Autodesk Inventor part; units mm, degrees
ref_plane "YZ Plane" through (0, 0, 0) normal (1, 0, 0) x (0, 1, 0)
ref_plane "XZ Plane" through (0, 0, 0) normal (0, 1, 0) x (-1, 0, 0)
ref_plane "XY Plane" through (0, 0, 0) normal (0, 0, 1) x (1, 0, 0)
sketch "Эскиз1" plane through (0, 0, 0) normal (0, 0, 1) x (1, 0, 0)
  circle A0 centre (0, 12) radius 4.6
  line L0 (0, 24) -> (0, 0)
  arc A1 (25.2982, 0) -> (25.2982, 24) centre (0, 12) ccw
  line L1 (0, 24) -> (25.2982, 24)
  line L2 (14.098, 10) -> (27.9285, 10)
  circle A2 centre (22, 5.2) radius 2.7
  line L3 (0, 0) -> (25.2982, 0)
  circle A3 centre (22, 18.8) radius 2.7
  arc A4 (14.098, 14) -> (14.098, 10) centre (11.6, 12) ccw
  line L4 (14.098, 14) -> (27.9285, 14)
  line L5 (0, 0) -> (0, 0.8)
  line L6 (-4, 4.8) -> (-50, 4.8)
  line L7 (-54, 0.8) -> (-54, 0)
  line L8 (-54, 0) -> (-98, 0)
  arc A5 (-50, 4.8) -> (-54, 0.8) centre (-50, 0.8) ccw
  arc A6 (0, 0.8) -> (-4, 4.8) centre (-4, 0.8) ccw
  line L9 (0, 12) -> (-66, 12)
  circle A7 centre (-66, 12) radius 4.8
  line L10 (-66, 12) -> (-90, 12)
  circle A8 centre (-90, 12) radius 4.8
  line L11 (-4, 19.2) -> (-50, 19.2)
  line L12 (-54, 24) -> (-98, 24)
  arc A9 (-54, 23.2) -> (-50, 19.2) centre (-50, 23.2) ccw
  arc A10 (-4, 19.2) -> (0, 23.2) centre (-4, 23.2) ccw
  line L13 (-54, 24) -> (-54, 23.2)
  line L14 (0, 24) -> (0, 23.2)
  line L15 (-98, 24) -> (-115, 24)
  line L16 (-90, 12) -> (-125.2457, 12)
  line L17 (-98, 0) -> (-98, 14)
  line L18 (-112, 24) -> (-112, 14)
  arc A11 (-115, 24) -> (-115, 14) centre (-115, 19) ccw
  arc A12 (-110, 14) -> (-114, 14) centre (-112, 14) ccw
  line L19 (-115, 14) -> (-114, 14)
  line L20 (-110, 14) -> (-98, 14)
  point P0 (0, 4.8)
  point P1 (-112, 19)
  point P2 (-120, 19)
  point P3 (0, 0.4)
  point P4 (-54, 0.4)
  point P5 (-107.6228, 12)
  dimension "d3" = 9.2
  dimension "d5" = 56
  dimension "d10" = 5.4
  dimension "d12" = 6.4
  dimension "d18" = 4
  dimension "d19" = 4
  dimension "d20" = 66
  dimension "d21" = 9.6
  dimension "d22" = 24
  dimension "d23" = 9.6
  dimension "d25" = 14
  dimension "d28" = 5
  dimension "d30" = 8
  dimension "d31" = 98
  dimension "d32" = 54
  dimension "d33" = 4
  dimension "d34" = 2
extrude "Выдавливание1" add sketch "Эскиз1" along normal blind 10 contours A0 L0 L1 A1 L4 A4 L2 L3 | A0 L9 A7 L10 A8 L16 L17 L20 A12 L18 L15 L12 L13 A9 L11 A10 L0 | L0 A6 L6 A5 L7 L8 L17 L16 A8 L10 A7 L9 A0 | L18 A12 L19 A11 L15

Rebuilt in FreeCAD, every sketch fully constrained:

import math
import FreeCAD as App
import Part
import Sketcher

V = App.Vector

doc = App.newDocument("Part")
body = doc.addObject("PartDesign::Body", "Body")

# Sketch on XY plane
sketch1 = body.newObject("Sketcher::SketchObject", "Sketch")
sketch1.AttachmentSupport = (doc.getObject("XY_Plane"), [""])
sketch1.MapMode = "FlatFace"
sketch1.addGeometry([
    Part.LineSegment(V(0, 24, 0), V(0, 23.2, 0)),  # 0
    Part.ArcOfCircle(Part.Circle(V(-4, 23.2, 0), V(0, 0, 1), 4), math.radians(-90), math.radians(0)),  # 1
    Part.LineSegment(V(-4, 19.2, 0), V(-50, 19.2, 0)),  # 2
    Part.ArcOfCircle(Part.Circle(V(-50, 23.2, 0), V(0, 0, 1), 4), math.radians(180), math.radians(270)),  # 3
    Part.LineSegment(V(-54, 23.2, 0), V(-54, 24, 0)),  # 4
    Part.LineSegment(V(-54, 24, 0), V(-115, 24, 0)),  # 5
    Part.ArcOfCircle(Part.Circle(V(-115, 19, 0), V(0, 0, 1), 5), math.radians(90), math.radians(270)),  # 6
    Part.LineSegment(V(-115, 14, 0), V(-114, 14, 0)),  # 7
    Part.ArcOfCircle(Part.Circle(V(-112, 14, 0), V(0, 0, 1), 2), math.radians(0), math.radians(180)),  # 8
    Part.LineSegment(V(-110, 14, 0), V(-98, 14, 0)),  # 9
    Part.LineSegment(V(-98, 14, 0), V(-98, 0, 0)),  # 10
    Part.LineSegment(V(-98, 0, 0), V(-54, 0, 0)),  # 11
    Part.LineSegment(V(-54, 0, 0), V(-54, 0.8, 0)),  # 12
    Part.ArcOfCircle(Part.Circle(V(-50, 0.8, 0), V(0, 0, 1), 4), math.radians(90), math.radians(180)),  # 13
    Part.LineSegment(V(-50, 4.8, 0), V(-4, 4.8, 0)),  # 14
    Part.ArcOfCircle(Part.Circle(V(-4, 0.8, 0), V(0, 0, 1), 4), math.radians(0), math.radians(90)),  # 15
    Part.LineSegment(V(0, 0.8, 0), V(0, 0, 0)),  # 16
    Part.LineSegment(V(0, 0, 0), V(25.3, 0, 0)),  # 17
    Part.ArcOfCircle(Part.Circle(V(0, 12, 0), V(0, 0, 1), 28), math.radians(-25), math.radians(-4)),  # 18
    Part.LineSegment(V(27.9, 10, 0), V(14.1, 10, 0)),  # 19
    Part.ArcOfCircle(Part.Circle(V(11.6, 12, 0), V(0, 0, 1), 3.2), math.radians(39), math.radians(321)),  # 20
    Part.LineSegment(V(14.1, 14, 0), V(27.9, 14, 0)),  # 21
    Part.ArcOfCircle(Part.Circle(V(0, 12, 0), V(0, 0, 1), 28), math.radians(4), math.radians(25)),  # 22
    Part.LineSegment(V(25.3, 24, 0), V(0, 24, 0)),  # 23
    Part.Circle(V(0, 12, 0), V(0, 0, 1), 4.6),  # 24
    Part.Circle(V(22, 5.2, 0), V(0, 0, 1), 2.7),  # 25
    Part.Circle(V(22, 18.8, 0), V(0, 0, 1), 2.7),  # 26
    Part.Circle(V(-66, 12, 0), V(0, 0, 1), 4.8),  # 27
    Part.Circle(V(-90, 12, 0), V(0, 0, 1), 4.8),  # 28
], False)
sketch1.addConstraint([
    Sketcher.Constraint("Tangent", 0, 2, 1, 2),
    Sketcher.Constraint("Tangent", 1, 1, 2, 1),
    Sketcher.Constraint("Tangent", 2, 2, 3, 2),
    Sketcher.Constraint("Tangent", 3, 1, 4, 1),
    Sketcher.Constraint("Coincident", 4, 2, 5, 1),
    Sketcher.Constraint("Tangent", 5, 2, 6, 1),
    Sketcher.Constraint("Tangent", 6, 2, 7, 1),
    Sketcher.Constraint("Coincident", 7, 2, 8, 2),
    Sketcher.Constraint("Coincident", 8, 1, 9, 1),
    Sketcher.Constraint("Coincident", 9, 2, 10, 1),
    Sketcher.Constraint("Coincident", 10, 2, 11, 1),
    Sketcher.Constraint("Coincident", 11, 2, 12, 1),
    Sketcher.Constraint("Tangent", 12, 2, 13, 2),
    Sketcher.Constraint("Tangent", 13, 1, 14, 1),
    Sketcher.Constraint("Tangent", 14, 2, 15, 2),
    Sketcher.Constraint("Tangent", 15, 1, 16, 1),
    Sketcher.Constraint("Coincident", 16, 2, 17, 1),
    Sketcher.Constraint("Coincident", 17, 2, 18, 1),
    Sketcher.Constraint("Coincident", 18, 2, 19, 1),
    Sketcher.Constraint("Coincident", 19, 2, 20, 2),
    Sketcher.Constraint("Coincident", 20, 1, 21, 1),
    Sketcher.Constraint("Coincident", 21, 2, 22, 1),
    Sketcher.Constraint("Coincident", 22, 2, 23, 1),
    Sketcher.Constraint("Coincident", 23, 2, 0, 1),
    Sketcher.Constraint("Vertical", 0),
    Sketcher.Constraint("Horizontal", 2),
    Sketcher.Constraint("Vertical", 4),
    Sketcher.Constraint("Horizontal", 5),
    Sketcher.Constraint("Horizontal", 7),
    Sketcher.Constraint("Horizontal", 9),
    Sketcher.Constraint("Vertical", 10),
    Sketcher.Constraint("Horizontal", 11),
    Sketcher.Constraint("Vertical", 12),
    Sketcher.Constraint("Horizontal", 14),
    Sketcher.Constraint("Vertical", 16),
    Sketcher.Constraint("Horizontal", 17),
    Sketcher.Constraint("Horizontal", 19),
    Sketcher.Constraint("Horizontal", 21),
    Sketcher.Constraint("Horizontal", 23),
    Sketcher.Constraint("Coincident", 16, 2, -1, 1),
    Sketcher.Constraint("Coincident", 22, 3, 18, 3),
    Sketcher.Constraint("Coincident", 24, 3, 18, 3),
    Sketcher.Constraint("Equal", 1, 3),
    Sketcher.Constraint("Equal", 3, 13),
    Sketcher.Constraint("Equal", 13, 15),
    Sketcher.Constraint("Equal", 18, 22),
    Sketcher.Constraint("Equal", 25, 26),
    Sketcher.Constraint("Equal", 27, 28),
    Sketcher.Constraint("PointOnObject", 18, 3, -2),
    Sketcher.Constraint("PointOnObject", 0, 2, -2),
    Sketcher.Constraint("PointOnObject", 10, 2, -1),
    Sketcher.Constraint("Horizontal", 18, 3, 20, 3),
    Sketcher.Constraint("Horizontal", 24, 3, 27, 3),
    Sketcher.Constraint("Horizontal", 27, 3, 28, 3),
    Sketcher.Constraint("Horizontal", 8, 3, 6, 2),
    Sketcher.Constraint("Horizontal", 7, 2, 8, 1),
    Sketcher.Constraint("Horizontal", 9, 2, 20, 1),
    Sketcher.Constraint("Horizontal", 5, 2, 22, 2),
    Sketcher.Constraint("Vertical", 3, 3, 13, 3),
    Sketcher.Constraint("Vertical", 25, 3, 26, 3),
    Sketcher.Constraint("Vertical", 19, 2, 20, 1),
    Sketcher.Constraint("Vertical", 17, 2, 22, 2),
    Sketcher.Constraint("Equal", 4, 12),
    Sketcher.Constraint("Radius", 1, 4.0),
    Sketcher.Constraint("Radius", 6, 5.0),
    Sketcher.Constraint("Radius", 8, 2.0),
    Sketcher.Constraint("Radius", 18, 28.0),
    Sketcher.Constraint("Diameter", 24, 9.2),
    Sketcher.Constraint("Diameter", 25, 5.4),
    Sketcher.Constraint("Diameter", 27, 9.6),
    Sketcher.Constraint("Radius", 20, 3.2),
    Sketcher.Constraint("DistanceY", 10, 2, 10, 1, 14.0),
    Sketcher.Constraint("DistanceX", 27, 3, -1, 1, 66.0),
    Sketcher.Constraint("DistanceX", 3, 1, -1, 1, 54.0),
    Sketcher.Constraint("DistanceX", 9, 2, -1, 1, 98.0),
    Sketcher.Constraint("DistanceX", 28, 3, 27, 3, 24.0),
    Sketcher.Constraint("DistanceX", 7, 2, 28, 3, 24.0),
    Sketcher.Constraint("DistanceX", 6, 2, 8, 1, 5.0),
    Sketcher.Constraint("DistanceY", 8, 3, 3, 3, 9.2),
    Sketcher.Constraint("DistanceX", -1, 1, 25, 3, 22.0),
    Sketcher.Constraint("DistanceX", -1, 1, 20, 3, 11.6),
    Sketcher.Constraint("DistanceY", -1, 1, 25, 3, 5.2),
    Sketcher.Constraint("DistanceY", -1, 1, 26, 3, 18.8),
])
pad1 = body.newObject("PartDesign::Pad", "Pad")
pad1.Profile = sketch1
pad1.Length = 10

doc.recompute()
